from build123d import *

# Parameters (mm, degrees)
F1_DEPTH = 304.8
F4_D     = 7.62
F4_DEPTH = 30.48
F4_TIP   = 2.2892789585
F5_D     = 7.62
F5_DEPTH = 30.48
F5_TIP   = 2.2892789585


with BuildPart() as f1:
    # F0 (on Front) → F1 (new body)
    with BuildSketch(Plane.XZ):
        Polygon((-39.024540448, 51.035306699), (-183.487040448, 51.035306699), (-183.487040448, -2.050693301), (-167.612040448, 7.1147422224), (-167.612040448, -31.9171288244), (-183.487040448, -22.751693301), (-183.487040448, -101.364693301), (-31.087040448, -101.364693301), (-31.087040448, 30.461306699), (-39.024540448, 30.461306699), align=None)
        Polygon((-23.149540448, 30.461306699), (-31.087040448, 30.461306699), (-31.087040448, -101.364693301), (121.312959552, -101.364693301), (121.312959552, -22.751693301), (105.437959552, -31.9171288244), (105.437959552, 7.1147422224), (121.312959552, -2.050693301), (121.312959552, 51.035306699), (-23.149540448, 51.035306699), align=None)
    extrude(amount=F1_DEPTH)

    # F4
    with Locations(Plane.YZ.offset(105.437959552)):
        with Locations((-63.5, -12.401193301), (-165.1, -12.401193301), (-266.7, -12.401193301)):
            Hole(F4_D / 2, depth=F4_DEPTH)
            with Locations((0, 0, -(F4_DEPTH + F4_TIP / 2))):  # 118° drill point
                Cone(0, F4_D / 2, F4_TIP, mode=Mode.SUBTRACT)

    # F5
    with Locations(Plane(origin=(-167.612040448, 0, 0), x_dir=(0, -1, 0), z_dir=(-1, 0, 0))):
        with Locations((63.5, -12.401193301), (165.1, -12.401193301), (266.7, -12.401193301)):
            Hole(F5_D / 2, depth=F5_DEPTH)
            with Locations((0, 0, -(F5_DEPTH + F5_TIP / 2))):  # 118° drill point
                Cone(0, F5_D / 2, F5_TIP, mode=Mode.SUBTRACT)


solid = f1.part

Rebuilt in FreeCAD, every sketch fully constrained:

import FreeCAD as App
import Part
import Sketcher
Q = App.Units.Quantity


def add_polygon(sketch, points):
    """Adds a closed chain of lines whose ends are joined by coincident constraints."""
    first, n = sketch.GeometryCount, len(points)
    for a, b in zip(points, points[1:] + points[:1]):
        sketch.addGeometry(Part.LineSegment(App.Vector(*a, 0), App.Vector(*b, 0)), False)
    for i in range(n):
        sketch.addConstraint(Sketcher.Constraint("Coincident", first + i, 2, first + (i + 1) % n, 1))

doc = App.newDocument("Part")
params = doc.addObject("Spreadsheet::Sheet", "Params")
for row, (alias, value) in enumerate([
    ("sketch1_width", "12 in"),
    ("sketch1_height", "2.09 in"),
    ("sketch1_height2", "0.81 in"),
    ("sketch1_width2", "5.6875 in"),
    ("sketch1_height3", "3.095 in"),
    ("pad1_length", "12 in"),
    ("sketch2_diameter", "0.3 in"),
    ("hole_diameter", "0.3 in"),
    ("hole_depth", "1.2 in"),
    ("sketch3_diameter", "0.3 in"),
    ("hole2_diameter", "0.3 in"),
    ("hole2_depth", "1.2 in"),
], start=1):
    params.set(f"A{row}", alias)
    params.set(f"B{row}", "=" + value)
    params.setAlias(f"B{row}", alias)

body = doc.addObject("PartDesign::Body", "Body")

sketch1 = doc.addObject("Sketcher::SketchObject", "Sketch")
body.addObject(sketch1)
sketch1.AttachmentSupport = (doc.XZ_Plane, [""])
sketch1.MapMode = "FlatFace"
add_polygon(sketch1, [(-39.02454, 51.035307), (-183.48704, 51.035307), (-183.48704, -2.050693), (-167.61204, 7.114742), (-167.61204, -31.917129), (-183.48704, -22.751693), (-183.48704, -101.364693), (121.31296, -101.364693), (121.31296, -22.751693), (105.43796, -31.917129), (105.43796, 7.114742), (121.31296, -2.050693), (121.31296, 51.035307), (-23.14954, 51.035307), (-23.14954, 30.461307), (-39.02454, 30.461307)])
sketch1.addConstraint(Sketcher.Constraint("Horizontal", 0))
sketch1.addConstraint(Sketcher.Constraint("Vertical", 1))
sketch1.addConstraint(Sketcher.Constraint("Vertical", 3))
sketch1.addConstraint(Sketcher.Constraint("Vertical", 5))
sketch1.addConstraint(Sketcher.Constraint("Horizontal", 6))
sketch1.addConstraint(Sketcher.Constraint("Vertical", 7))
sketch1.addConstraint(Sketcher.Constraint("Vertical", 9))
sketch1.addConstraint(Sketcher.Constraint("Vertical", 11))
sketch1.addConstraint(Sketcher.Constraint("Horizontal", 12))
sketch1.addConstraint(Sketcher.Constraint("Vertical", 13))
sketch1.addConstraint(Sketcher.Constraint("Horizontal", 14))
sketch1.addConstraint(Sketcher.Constraint("Vertical", 15))
sketch1.addConstraint(Sketcher.Constraint("Parallel", 2, 8))
sketch1.addConstraint(Sketcher.Constraint("Parallel", 4, 10))
sketch1.addConstraint(Sketcher.Constraint("Horizontal", 4, 2, 7, 2))
sketch1.addConstraint(Sketcher.Constraint("Horizontal", 3, 2, 8, 2))
sketch1.addConstraint(Sketcher.Constraint("Horizontal", 2, 2, 9, 2))
sketch1.addConstraint(Sketcher.Constraint("Horizontal", 1, 2, 10, 2))
sketch1.addConstraint(Sketcher.Constraint("Horizontal", 0, 2, 11, 2))
sketch1.addConstraint(Sketcher.Constraint("Vertical", 1, 2, 4, 2))
sketch1.addConstraint(Sketcher.Constraint("Vertical", 7, 2, 10, 2))
sketch1.addConstraint(Sketcher.Constraint("Equal", 0, 12))
sketch1.addConstraint(Sketcher.Constraint("DistanceX", 6, 1, 6, 2, Q("12 in")))
sketch1.addConstraint(Sketcher.Constraint("Angle", 2, Q("30 deg")))
sketch1.addConstraint(Sketcher.Constraint("DistanceY", 5, 2, 0, 2, Q("6 in")))
sketch1.addConstraint(Sketcher.Constraint("DistanceY", 1, 2, 1, 1, Q("2.09 in")))
sketch1.addConstraint(Sketcher.Constraint("DistanceY", 13, 2, 13, 1, Q("0.81 in")))
sketch1.addConstraint(Sketcher.Constraint("DistanceX", 0, 2, 0, 1, Q("5.6875 in")))
sketch1.addConstraint(Sketcher.Constraint("DistanceY", 5, 2, 5, 1, Q("3.095 in")))
sketch1.addConstraint(Sketcher.Constraint("DistanceX", 3, 2, 8, 2, Q("10.75 in")))
sketch1.addConstraint(Sketcher.Constraint("DistanceX", 0, 2, -1, 1, Q("183.48704 mm")))
sketch1.addConstraint(Sketcher.Constraint("DistanceY", 3, 2, -1, 1, Q("31.917129 mm")))
sketch1.setExpression("Constraints[38]", "Params.sketch1_width")
sketch1.setExpression("Constraints[41]", "Params.sketch1_height")
sketch1.setExpression("Constraints[42]", "Params.sketch1_height2")
sketch1.setExpression("Constraints[43]", "Params.sketch1_width2")
sketch1.setExpression("Constraints[44]", "Params.sketch1_height3")
pad1 = doc.addObject("PartDesign::Pad", "Pad")
body.addObject(pad1)
pad1.Profile = sketch1
pad1.setExpression("Length", "Params.pad1_length")

sketch2 = doc.addObject("Sketcher::SketchObject", "Sketch001")
body.addObject(sketch2)
sketch2.AttachmentSupport = (doc.YZ_Plane, [""])
sketch2.MapMode = "FlatFace"
sketch2.AttachmentOffset = App.Placement(App.Vector(0, 0, 105.43796), App.Rotation())
sketch2.addGeometry(Part.Circle(App.Vector(-63.5, -12.401193, 0), App.Vector(0, 0, 1), 3.81), False)
sketch2.addGeometry(Part.Circle(App.Vector(-165.1, -12.401193, 0), App.Vector(0, 0, 1), 3.81), False)
sketch2.addGeometry(Part.Circle(App.Vector(-266.7, -12.401193, 0), App.Vector(0, 0, 1), 3.81), False)
sketch2.addConstraint(Sketcher.Constraint("Equal", 0, 1))
sketch2.addConstraint(Sketcher.Constraint("Equal", 1, 2))
sketch2.addConstraint(Sketcher.Constraint("Horizontal", 0, 3, 1, 3))
sketch2.addConstraint(Sketcher.Constraint("Horizontal", 1, 3, 2, 3))
sketch2.addConstraint(Sketcher.Constraint("Diameter", 0, Q("0.3 in")))
sketch2.addConstraint(Sketcher.Constraint("DistanceX", 1, 3, 0, 3, Q("4 in")))
sketch2.addConstraint(Sketcher.Constraint("DistanceX", 2, 3, 1, 3, Q("4 in")))
sketch2.addConstraint(Sketcher.Constraint("DistanceX", 0, 3, -1, 1, Q("2.5 in")))
sketch2.addConstraint(Sketcher.Constraint("DistanceY", 0, 3, -1, 1, Q("12.401193 mm")))
sketch2.setExpression("Constraints[4]", "Params.sketch2_diameter")
doc.recompute()
hole = doc.addObject("PartDesign::Hole", "Hole")
body.addObject(hole)
hole.Profile = sketch2
hole.ThreadType = "None"
hole.setExpression("Diameter", "Params.hole_diameter")
hole.DepthType = "Dimension"
hole.setExpression("Depth", "Params.hole_depth")
hole.DrillPoint = "Angled"
hole.DrillPointAngle = 118

sketch3 = doc.addObject("Sketcher::SketchObject", "Sketch002")
body.addObject(sketch3)
sketch3.AttachmentSupport = (doc.YZ_Plane, [""])
sketch3.MapMode = "FlatFace"
sketch3.AttachmentOffset = App.Placement(App.Vector(0, 0, -167.61204), App.Rotation())
sketch3.addGeometry(Part.Circle(App.Vector(-63.5, -12.401193, 0), App.Vector(0, 0, 1), 3.81), False)
sketch3.addGeometry(Part.Circle(App.Vector(-165.1, -12.401193, 0), App.Vector(0, 0, 1), 3.81), False)
sketch3.addGeometry(Part.Circle(App.Vector(-266.7, -12.401193, 0), App.Vector(0, 0, 1), 3.81), False)
sketch3.addConstraint(Sketcher.Constraint("Equal", 0, 1))
sketch3.addConstraint(Sketcher.Constraint("Equal", 1, 2))
sketch3.addConstraint(Sketcher.Constraint("Horizontal", 0, 3, 1, 3))
sketch3.addConstraint(Sketcher.Constraint("Horizontal", 1, 3, 2, 3))
sketch3.addConstraint(Sketcher.Constraint("Diameter", 0, Q("0.3 in")))
sketch3.addConstraint(Sketcher.Constraint("DistanceX", 1, 3, 0, 3, Q("4 in")))
sketch3.addConstraint(Sketcher.Constraint("DistanceX", 2, 3, 1, 3, Q("4 in")))
sketch3.addConstraint(Sketcher.Constraint("DistanceX", 0, 3, -1, 1, Q("2.5 in")))
sketch3.addConstraint(Sketcher.Constraint("DistanceY", 0, 3, -1, 1, Q("12.401193 mm")))
sketch3.setExpression("Constraints[4]", "Params.sketch3_diameter")
doc.recompute()
hole2 = doc.addObject("PartDesign::Hole", "Hole001")
body.addObject(hole2)
hole2.Profile = sketch3
hole2.ThreadType = "None"
hole2.setExpression("Diameter", "Params.hole2_diameter")
hole2.DepthType = "Dimension"
hole2.setExpression("Depth", "Params.hole2_depth")
hole2.DrillPoint = "Angled"
hole2.DrillPointAngle = 118
hole2.Reversed = True

doc.recompute()
